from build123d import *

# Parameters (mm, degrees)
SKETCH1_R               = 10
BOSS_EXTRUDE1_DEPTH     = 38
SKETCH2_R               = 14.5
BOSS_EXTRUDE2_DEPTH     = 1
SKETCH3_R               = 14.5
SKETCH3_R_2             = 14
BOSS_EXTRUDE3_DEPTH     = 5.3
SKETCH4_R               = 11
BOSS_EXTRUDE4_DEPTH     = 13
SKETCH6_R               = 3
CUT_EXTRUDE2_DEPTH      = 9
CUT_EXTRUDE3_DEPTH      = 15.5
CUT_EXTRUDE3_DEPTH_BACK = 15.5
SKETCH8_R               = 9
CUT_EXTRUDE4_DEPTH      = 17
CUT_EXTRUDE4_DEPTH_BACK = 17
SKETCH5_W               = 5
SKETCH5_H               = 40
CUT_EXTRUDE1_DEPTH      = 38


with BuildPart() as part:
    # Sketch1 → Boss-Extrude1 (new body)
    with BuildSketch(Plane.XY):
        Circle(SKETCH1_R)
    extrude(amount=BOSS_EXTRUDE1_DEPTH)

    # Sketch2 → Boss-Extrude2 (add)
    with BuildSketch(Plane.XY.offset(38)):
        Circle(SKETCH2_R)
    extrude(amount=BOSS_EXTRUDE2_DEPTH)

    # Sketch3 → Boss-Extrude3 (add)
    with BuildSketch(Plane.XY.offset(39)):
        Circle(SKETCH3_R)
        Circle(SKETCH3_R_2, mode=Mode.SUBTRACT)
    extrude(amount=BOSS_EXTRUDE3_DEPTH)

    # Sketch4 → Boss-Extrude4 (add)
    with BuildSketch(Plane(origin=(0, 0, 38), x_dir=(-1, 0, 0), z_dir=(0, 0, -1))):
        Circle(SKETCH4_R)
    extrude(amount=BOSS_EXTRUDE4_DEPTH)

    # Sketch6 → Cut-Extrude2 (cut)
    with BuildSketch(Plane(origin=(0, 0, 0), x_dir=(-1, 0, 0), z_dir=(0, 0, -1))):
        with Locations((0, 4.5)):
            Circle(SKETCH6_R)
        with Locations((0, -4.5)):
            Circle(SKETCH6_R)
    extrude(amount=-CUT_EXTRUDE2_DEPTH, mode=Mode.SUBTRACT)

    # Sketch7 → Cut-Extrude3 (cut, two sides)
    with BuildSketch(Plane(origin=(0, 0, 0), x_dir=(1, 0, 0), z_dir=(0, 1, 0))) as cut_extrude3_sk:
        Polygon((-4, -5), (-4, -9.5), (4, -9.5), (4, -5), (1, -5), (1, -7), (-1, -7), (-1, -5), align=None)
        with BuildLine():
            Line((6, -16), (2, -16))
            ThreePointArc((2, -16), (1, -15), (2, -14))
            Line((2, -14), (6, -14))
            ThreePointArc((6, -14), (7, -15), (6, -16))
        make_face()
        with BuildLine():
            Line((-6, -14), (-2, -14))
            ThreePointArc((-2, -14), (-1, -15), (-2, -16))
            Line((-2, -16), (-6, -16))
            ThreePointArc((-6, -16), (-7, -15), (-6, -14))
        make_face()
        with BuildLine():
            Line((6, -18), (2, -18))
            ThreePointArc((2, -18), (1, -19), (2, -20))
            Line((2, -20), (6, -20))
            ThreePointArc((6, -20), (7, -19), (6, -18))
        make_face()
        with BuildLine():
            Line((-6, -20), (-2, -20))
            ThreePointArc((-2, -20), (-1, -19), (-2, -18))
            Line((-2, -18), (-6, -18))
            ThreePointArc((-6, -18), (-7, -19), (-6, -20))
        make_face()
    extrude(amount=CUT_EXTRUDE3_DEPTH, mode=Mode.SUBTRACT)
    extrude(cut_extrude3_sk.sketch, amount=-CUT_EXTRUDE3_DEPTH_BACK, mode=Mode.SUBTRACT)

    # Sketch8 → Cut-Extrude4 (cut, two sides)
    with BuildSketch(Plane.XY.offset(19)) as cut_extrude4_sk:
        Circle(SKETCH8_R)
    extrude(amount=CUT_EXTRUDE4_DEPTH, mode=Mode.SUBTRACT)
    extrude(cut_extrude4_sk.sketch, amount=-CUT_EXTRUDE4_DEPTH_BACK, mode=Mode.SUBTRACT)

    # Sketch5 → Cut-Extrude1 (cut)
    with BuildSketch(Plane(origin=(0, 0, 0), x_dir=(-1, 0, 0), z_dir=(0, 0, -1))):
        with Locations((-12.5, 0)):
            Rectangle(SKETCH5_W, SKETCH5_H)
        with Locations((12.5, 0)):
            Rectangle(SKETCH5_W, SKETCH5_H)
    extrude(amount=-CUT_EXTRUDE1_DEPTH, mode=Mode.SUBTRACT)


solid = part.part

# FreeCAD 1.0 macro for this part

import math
import FreeCAD as App
import Part
import Sketcher

V = App.Vector
Q = App.Units.Quantity


def add_polygon(sketch, points):
    """Adds a closed chain of lines whose ends are joined by coincident constraints."""
    first, n = sketch.GeometryCount, len(points)
    for a, b in zip(points, points[1:] + points[:1]):
        sketch.addGeometry(Part.LineSegment(App.Vector(*a, 0), App.Vector(*b, 0)), False)
    for i in range(n):
        sketch.addConstraint(Sketcher.Constraint("Coincident", first + i, 2, first + (i + 1) % n, 1))

doc = App.newDocument("Part")
params = doc.addObject("Spreadsheet::Sheet", "Params")
for row, (alias, value) in enumerate([
    ("sketch1_diameter", "20 mm"),
    ("pad1_length", "38 mm"),
    ("sketch2_diameter", "29 mm"),
    ("pad2_length", "1 mm"),
    ("sketch3_diameter", "29 mm"),
    ("sketch3_diameter2", "28 mm"),
    ("pad3_length", "5.3 mm"),
    ("sketch4_diameter", "22 mm"),
    ("pad4_length", "13 mm"),
    ("sketch5_diameter", "6 mm"),
    ("pocket1_length", "9 mm"),
    ("sketch6_radius", "1 mm"),
    ("sketch6_width", "8 mm"),
    ("sketch6_width2", "3 mm"),
    ("sketch6_width3", "4 mm"),
    ("sketch6_height", "4.5 mm"),
    ("sketch7_diameter", "18 mm"),
    ("pocket3_length", "17 mm"),
    ("pocket3_length2", "17 mm"),
    ("sketch8_width", "5 mm"),
    ("sketch8_height", "40 mm"),
    ("pocket4_length", "38 mm"),
], start=1):
    params.set(f"A{row}", alias)
    params.set(f"B{row}", "=" + value)
    params.setAlias(f"B{row}", alias)

body = doc.addObject("PartDesign::Body", "Body")

# Sketch on XY plane
sketch1 = body.newObject("Sketcher::SketchObject", "Sketch")
sketch1.AttachmentSupport = (doc.getObject("XY_Plane"), [""])
sketch1.MapMode = "FlatFace"
sketch1.addGeometry(Part.Circle(V(0, 0, 0), V(0, 0, 1), 10), False)
sketch1.addConstraint(Sketcher.Constraint("Coincident", 0, 3, -1, 1))
sketch1.addConstraint(Sketcher.Constraint("Diameter", 0, Q("20 mm")))
sketch1.setExpression("Constraints[1]", "Params.sketch1_diameter")
pad1 = body.newObject("PartDesign::Pad", "Pad")
pad1.Profile = sketch1
pad1.setExpression("Length", "Params.pad1_length")

# Sketch on XY plane
sketch2 = body.newObject("Sketcher::SketchObject", "Sketch001")
sketch2.AttachmentSupport = (doc.getObject("XY_Plane"), [""])
sketch2.MapMode = "FlatFace"
sketch2.AttachmentOffset = App.Placement(V(0, 0, 38), App.Rotation())
sketch2.addGeometry(Part.Circle(V(0, 0, 0), V(0, 0, 1), 14), False)
sketch2.addConstraint(Sketcher.Constraint("Coincident", 0, 3, -1, 1))
sketch2.addConstraint(Sketcher.Constraint("Diameter", 0, Q("29 mm")))
sketch2.setExpression("Constraints[1]", "Params.sketch2_diameter")
pad2 = body.newObject("PartDesign::Pad", "Pad001")
pad2.Profile = sketch2
pad2.setExpression("Length", "Params.pad2_length")

# Sketch on XY plane
sketch3 = body.newObject("Sketcher::SketchObject", "Sketch002")
sketch3.AttachmentSupport = (doc.getObject("XY_Plane"), [""])
sketch3.MapMode = "FlatFace"
sketch3.AttachmentOffset = App.Placement(V(0, 0, 39), App.Rotation())
sketch3.addGeometry(Part.Circle(V(0, 0, 0), V(0, 0, 1), 14), False)
sketch3.addGeometry(Part.Circle(V(0, 0, 0), V(0, 0, 1), 14), False)
sketch3.addConstraint(Sketcher.Constraint("Coincident", 0, 3, -1, 1))
sketch3.addConstraint(Sketcher.Constraint("Coincident", 1, 3, -1, 1))
sketch3.addConstraint(Sketcher.Constraint("Diameter", 0, Q("29 mm")))
sketch3.addConstraint(Sketcher.Constraint("Diameter", 1, Q("28 mm")))
sketch3.setExpression("Constraints[2]", "Params.sketch3_diameter")
sketch3.setExpression("Constraints[3]", "Params.sketch3_diameter2")
pad3 = body.newObject("PartDesign::Pad", "Pad002")
pad3.Profile = sketch3
pad3.setExpression("Length", "Params.pad3_length")

# Sketch on XY plane
sketch4 = body.newObject("Sketcher::SketchObject", "Sketch003")
sketch4.AttachmentSupport = (doc.getObject("XY_Plane"), [""])
sketch4.MapMode = "FlatFace"
sketch4.AttachmentOffset = App.Placement(V(0, 0, 38), App.Rotation())
sketch4.addGeometry(Part.Circle(V(0, 0, 0), V(0, 0, 1), 11), False)
sketch4.addConstraint(Sketcher.Constraint("Coincident", 0, 3, -1, 1))
sketch4.addConstraint(Sketcher.Constraint("Diameter", 0, Q("22 mm")))
sketch4.setExpression("Constraints[1]", "Params.sketch4_diameter")
pad4 = body.newObject("PartDesign::Pad", "Pad003")
pad4.Profile = sketch4
pad4.setExpression("Length", "Params.pad4_length")
pad4.Reversed = True

# Sketch on XY plane
sketch5 = body.newObject("Sketcher::SketchObject", "Sketch004")
sketch5.AttachmentSupport = (doc.getObject("XY_Plane"), [""])
sketch5.MapMode = "FlatFace"
sketch5.addGeometry(Part.Circle(V(0, 4.5, 0), V(0, 0, 1), 3), False)
sketch5.addGeometry(Part.Circle(V(0, -4.5, 0), V(0, 0, 1), 3), False)
sketch5.addConstraint(Sketcher.Constraint("Equal", 0, 1))
sketch5.addConstraint(Sketcher.Constraint("Symmetric", 0, 3, 1, 3, -1, 1))
sketch5.addConstraint(Sketcher.Constraint("PointOnObject", 0, 3, -2))
sketch5.addConstraint(Sketcher.Constraint("Diameter", 0, Q("6 mm")))
sketch5.addConstraint(Sketcher.Constraint("DistanceY", 1, 3, 0, 3, Q("9 mm")))
sketch5.setExpression("Constraints[3]", "Params.sketch5_diameter")
pocket1 = body.newObject("PartDesign::Pocket", "Pocket")
pocket1.Profile = sketch5
pocket1.setExpression("Length", "Params.pocket1_length")
pocket1.Reversed = True

# Sketch on XZ plane
sketch6 = body.newObject("Sketcher::SketchObject", "Sketch005")
sketch6.AttachmentSupport = (doc.getObject("XZ_Plane"), [""])
sketch6.MapMode = "FlatFace"
add_polygon(sketch6, [(-4, 5), (-4, 9.5), (4, 9.5), (4, 5), (1, 5), (1, 7), (-1, 7), (-1, 5)])  # lines 0-7
sketch6.addGeometry(Part.LineSegment(V(2, 16, 0), V(6, 16, 0)), False)  # 8
sketch6.addGeometry(Part.ArcOfCircle(Part.Circle(V(6, 15, 0), V(0, 0, 1), 1), math.radians(-90), math.radians(90)), False)  # 9
sketch6.addGeometry(Part.LineSegment(V(6, 14, 0), V(2, 14, 0)), False)  # 10
sketch6.addGeometry(Part.ArcOfCircle(Part.Circle(V(2, 15, 0), V(0, 0, 1), 1), math.radians(90), math.radians(270)), False)  # 11
sketch6.addGeometry(Part.LineSegment(V(-2, 14, 0), V(-6, 14, 0)), False)  # 12
sketch6.addGeometry(Part.ArcOfCircle(Part.Circle(V(-6, 15, 0), V(0, 0, 1), 1), math.radians(90), math.radians(270)), False)  # 13
sketch6.addGeometry(Part.LineSegment(V(-6, 16, 0), V(-2, 16, 0)), False)  # 14
sketch6.addGeometry(Part.ArcOfCircle(Part.Circle(V(-2, 15, 0), V(0, 0, 1), 1), math.radians(-90), math.radians(90)), False)  # 15
sketch6.addGeometry(Part.LineSegment(V(6, 18, 0), V(2, 18, 0)), False)  # 16
sketch6.addGeometry(Part.ArcOfCircle(Part.Circle(V(2, 19, 0), V(0, 0, 1), 1), math.radians(90), math.radians(270)), False)  # 17
sketch6.addGeometry(Part.LineSegment(V(2, 20, 0), V(6, 20, 0)), False)  # 18
sketch6.addGeometry(Part.ArcOfCircle(Part.Circle(V(6, 19, 0), V(0, 0, 1), 1), math.radians(-90), math.radians(90)), False)  # 19
sketch6.addGeometry(Part.LineSegment(V(-6, 20, 0), V(-2, 20, 0)), False)  # 20
sketch6.addGeometry(Part.ArcOfCircle(Part.Circle(V(-2, 19, 0), V(0, 0, 1), 1), math.radians(-90), math.radians(90)), False)  # 21
sketch6.addGeometry(Part.LineSegment(V(-2, 18, 0), V(-6, 18, 0)), False)  # 22
sketch6.addGeometry(Part.ArcOfCircle(Part.Circle(V(-6, 19, 0), V(0, 0, 1), 1), math.radians(90), math.radians(270)), False)  # 23
sketch6.addConstraint(Sketcher.Constraint("Tangent", 8, 2, 9, 2))
sketch6.addConstraint(Sketcher.Constraint("Tangent", 9, 1, 10, 1))
sketch6.addConstraint(Sketcher.Constraint("Tangent", 10, 2, 11, 2))
sketch6.addConstraint(Sketcher.Constraint("Tangent", 11, 1, 8, 1))
sketch6.addConstraint(Sketcher.Constraint("Tangent", 12, 2, 13, 2))
sketch6.addConstraint(Sketcher.Constraint("Tangent", 13, 1, 14, 1))
sketch6.addConstraint(Sketcher.Constraint("Tangent", 14, 2, 15, 2))
sketch6.addConstraint(Sketcher.Constraint("Tangent", 15, 1, 12, 1))
sketch6.addConstraint(Sketcher.Constraint("Tangent", 16, 2, 17, 2))
sketch6.addConstraint(Sketcher.Constraint("Tangent", 17, 1, 18, 1))
sketch6.addConstraint(Sketcher.Constraint("Tangent", 18, 2, 19, 2))
sketch6.addConstraint(Sketcher.Constraint("Tangent", 19, 1, 16, 1))
sketch6.addConstraint(Sketcher.Constraint("Tangent", 20, 2, 21, 2))
sketch6.addConstraint(Sketcher.Constraint("Tangent", 21, 1, 22, 1))
sketch6.addConstraint(Sketcher.Constraint("Tangent", 22, 2, 23, 2))
sketch6.addConstraint(Sketcher.Constraint("Tangent", 23, 1, 20, 1))
sketch6.addConstraint(Sketcher.Constraint("Vertical", 0))
sketch6.addConstraint(Sketcher.Constraint("Horizontal", 1))
sketch6.addConstraint(Sketcher.Constraint("Vertical", 2))
sketch6.addConstraint(Sketcher.Constraint("Horizontal", 3))
sketch6.addConstraint(Sketcher.Constraint("Vertical", 4))
sketch6.addConstraint(Sketcher.Constraint("Horizontal", 5))
sketch6.addConstraint(Sketcher.Constraint("Vertical", 6))
sketch6.addConstraint(Sketcher.Constraint("Horizontal", 7))
sketch6.addConstraint(Sketcher.Constraint("Horizontal", 8))
sketch6.addConstraint(Sketcher.Constraint("Horizontal", 10))
sketch6.addConstraint(Sketcher.Constraint("Horizontal", 12))
sketch6.addConstraint(Sketcher.Constraint("Horizontal", 14))
sketch6.addConstraint(Sketcher.Constraint("Horizontal", 16))
sketch6.addConstraint(Sketcher.Constraint("Horizontal", 18))
sketch6.addConstraint(Sketcher.Constraint("Horizontal", 20))
sketch6.addConstraint(Sketcher.Constraint("Horizontal", 22))
sketch6.addConstraint(Sketcher.Constraint("Equal", 11, 13))
sketch6.addConstraint(Sketcher.Constraint("Equal", 15, 17))
sketch6.addConstraint(Sketcher.Constraint("Equal", 19, 21))
sketch6.addConstraint(Sketcher.Constraint("Symmetric", 9, 3, 13, 3, -2))
sketch6.addConstraint(Sketcher.Constraint("Symmetric", 17, 3, 21, 3, -2))
sketch6.addConstraint(Sketcher.Constraint("Symmetric", 3, 2, 6, 2, -2))
sketch6.addConstraint(Sketcher.Constraint("Vertical", 11, 3, 17, 3))
sketch6.addConstraint(Sketcher.Constraint("Vertical", 9, 3, 19, 3))
sketch6.addConstraint(Sketcher.Constraint("Vertical", 15, 3, 21, 3))
sketch6.addConstraint(Sketcher.Constraint("Vertical", 13, 3, 23, 3))
sketch6.addConstraint(Sketcher.Constraint("Equal", 3, 7))
sketch6.addConstraint(Sketcher.Constraint("Equal", 5, 4))
sketch6.addConstraint(Sketcher.Constraint("Radius", 9, Q("1 mm")))
sketch6.addConstraint(Sketcher.Constraint("DistanceX", 1, 1, 1, 2, Q("8 mm")))
sketch6.addConstraint(Sketcher.Constraint("DistanceX", 3, 2, 3, 1, Q("3 mm")))
sketch6.addConstraint(Sketcher.Constraint("DistanceX", 8, 1, 8, 2, Q("4 mm")))
sketch6.addConstraint(Sketcher.Constraint("DistanceY", 0, 1, 0, 2, Q("4.5 mm")))
sketch6.addConstraint(Sketcher.Constraint("DistanceX", -1, 1, 9, 3, Q("6 mm")))
sketch6.addConstraint(Sketcher.Constraint("DistanceY", -1, 1, 9, 3, Q("15 mm")))
sketch6.addConstraint(Sketcher.Constraint("DistanceY", -1, 1, 17, 3, Q("19 mm")))
sketch6.addConstraint(Sketcher.Constraint("DistanceY", -1, 1, 2, 2, Q("5 mm")))
sketch6.setExpression("Constraints[52]", "Params.sketch6_radius")
sketch6.setExpression("Constraints[53]", "Params.sketch6_width")
sketch6.setExpression("Constraints[54]", "Params.sketch6_width2")
sketch6.setExpression("Constraints[55]", "Params.sketch6_width3")
sketch6.setExpression("Constraints[56]", "Params.sketch6_height")
pocket2 = body.newObject("PartDesign::Pocket", "Pocket001")
pocket2.Profile = sketch6
pocket2.Type = "ThroughAll"
pocket2.Midplane = True

# Sketch on XY plane
sketch7 = body.newObject("Sketcher::SketchObject", "Sketch006")
sketch7.AttachmentSupport = (doc.getObject("XY_Plane"), [""])
sketch7.MapMode = "FlatFace"
sketch7.AttachmentOffset = App.Placement(V(0, 0, 19), App.Rotation())
sketch7.addGeometry(Part.Circle(V(0, 0, 0), V(0, 0, 1), 9), False)
sketch7.addConstraint(Sketcher.Constraint("Coincident", 0, 3, -1, 1))
sketch7.addConstraint(Sketcher.Constraint("Diameter", 0, Q("18 mm")))
sketch7.setExpression("Constraints[1]", "Params.sketch7_diameter")
pocket3 = body.newObject("PartDesign::Pocket", "Pocket002")
pocket3.Profile = sketch7
pocket3.Type = "TwoLengths"
pocket3.setExpression("Length", "Params.pocket3_length")
pocket3.setExpression("Length2", "Params.pocket3_length2")
pocket3.Reversed = True

# Sketch on XY plane
sketch8 = body.newObject("Sketcher::SketchObject", "Sketch007")
sketch8.AttachmentSupport = (doc.getObject("XY_Plane"), [""])
sketch8.MapMode = "FlatFace"
add_polygon(sketch8, [(15, 20), (15, -20), (10, -20), (10, 20)])  # lines 0-3
add_polygon(sketch8, [(-10, 20), (-10, -20), (-15, -20), (-15, 20)])  # lines 4-7
sketch8.addConstraint(Sketcher.Constraint("Vertical", 0))
sketch8.addConstraint(Sketcher.Constraint("Horizontal", 1))
sketch8.addConstraint(Sketcher.Constraint("Vertical", 2))
sketch8.addConstraint(Sketcher.Constraint("Horizontal", 3))
sketch8.addConstraint(Sketcher.Constraint("Vertical", 4))
sketch8.addConstraint(Sketcher.Constraint("Horizontal", 5))
sketch8.addConstraint(Sketcher.Constraint("Vertical", 6))
sketch8.addConstraint(Sketcher.Constraint("Horizontal", 7))
sketch8.addConstraint(Sketcher.Constraint("Symmetric", 2, 2, 4, 2, -1, 1))
sketch8.addConstraint(Sketcher.Constraint("Symmetric", 0, 2, 6, 2, -1, 1))
sketch8.addConstraint(Sketcher.Constraint("Horizontal", 1, 2, 4, 2))
sketch8.addConstraint(Sketcher.Constraint("DistanceX", 1, 2, 1, 1, Q("5 mm")))
sketch8.addConstraint(Sketcher.Constraint("DistanceY", 0, 2, 0, 1, Q("40 mm")))
sketch8.addConstraint(Sketcher.Constraint("DistanceX", -1, 1, 0, 2, Q("15 mm")))
sketch8.setExpression("Constraints[19]", "Params.sketch8_width")
sketch8.setExpression("Constraints[20]", "Params.sketch8_height")
pocket4 = body.newObject("PartDesign::Pocket", "Pocket003")
pocket4.Profile = sketch8
pocket4.setExpression("Length", "Params.pocket4_length")
pocket4.Reversed = True

doc.recompute()
